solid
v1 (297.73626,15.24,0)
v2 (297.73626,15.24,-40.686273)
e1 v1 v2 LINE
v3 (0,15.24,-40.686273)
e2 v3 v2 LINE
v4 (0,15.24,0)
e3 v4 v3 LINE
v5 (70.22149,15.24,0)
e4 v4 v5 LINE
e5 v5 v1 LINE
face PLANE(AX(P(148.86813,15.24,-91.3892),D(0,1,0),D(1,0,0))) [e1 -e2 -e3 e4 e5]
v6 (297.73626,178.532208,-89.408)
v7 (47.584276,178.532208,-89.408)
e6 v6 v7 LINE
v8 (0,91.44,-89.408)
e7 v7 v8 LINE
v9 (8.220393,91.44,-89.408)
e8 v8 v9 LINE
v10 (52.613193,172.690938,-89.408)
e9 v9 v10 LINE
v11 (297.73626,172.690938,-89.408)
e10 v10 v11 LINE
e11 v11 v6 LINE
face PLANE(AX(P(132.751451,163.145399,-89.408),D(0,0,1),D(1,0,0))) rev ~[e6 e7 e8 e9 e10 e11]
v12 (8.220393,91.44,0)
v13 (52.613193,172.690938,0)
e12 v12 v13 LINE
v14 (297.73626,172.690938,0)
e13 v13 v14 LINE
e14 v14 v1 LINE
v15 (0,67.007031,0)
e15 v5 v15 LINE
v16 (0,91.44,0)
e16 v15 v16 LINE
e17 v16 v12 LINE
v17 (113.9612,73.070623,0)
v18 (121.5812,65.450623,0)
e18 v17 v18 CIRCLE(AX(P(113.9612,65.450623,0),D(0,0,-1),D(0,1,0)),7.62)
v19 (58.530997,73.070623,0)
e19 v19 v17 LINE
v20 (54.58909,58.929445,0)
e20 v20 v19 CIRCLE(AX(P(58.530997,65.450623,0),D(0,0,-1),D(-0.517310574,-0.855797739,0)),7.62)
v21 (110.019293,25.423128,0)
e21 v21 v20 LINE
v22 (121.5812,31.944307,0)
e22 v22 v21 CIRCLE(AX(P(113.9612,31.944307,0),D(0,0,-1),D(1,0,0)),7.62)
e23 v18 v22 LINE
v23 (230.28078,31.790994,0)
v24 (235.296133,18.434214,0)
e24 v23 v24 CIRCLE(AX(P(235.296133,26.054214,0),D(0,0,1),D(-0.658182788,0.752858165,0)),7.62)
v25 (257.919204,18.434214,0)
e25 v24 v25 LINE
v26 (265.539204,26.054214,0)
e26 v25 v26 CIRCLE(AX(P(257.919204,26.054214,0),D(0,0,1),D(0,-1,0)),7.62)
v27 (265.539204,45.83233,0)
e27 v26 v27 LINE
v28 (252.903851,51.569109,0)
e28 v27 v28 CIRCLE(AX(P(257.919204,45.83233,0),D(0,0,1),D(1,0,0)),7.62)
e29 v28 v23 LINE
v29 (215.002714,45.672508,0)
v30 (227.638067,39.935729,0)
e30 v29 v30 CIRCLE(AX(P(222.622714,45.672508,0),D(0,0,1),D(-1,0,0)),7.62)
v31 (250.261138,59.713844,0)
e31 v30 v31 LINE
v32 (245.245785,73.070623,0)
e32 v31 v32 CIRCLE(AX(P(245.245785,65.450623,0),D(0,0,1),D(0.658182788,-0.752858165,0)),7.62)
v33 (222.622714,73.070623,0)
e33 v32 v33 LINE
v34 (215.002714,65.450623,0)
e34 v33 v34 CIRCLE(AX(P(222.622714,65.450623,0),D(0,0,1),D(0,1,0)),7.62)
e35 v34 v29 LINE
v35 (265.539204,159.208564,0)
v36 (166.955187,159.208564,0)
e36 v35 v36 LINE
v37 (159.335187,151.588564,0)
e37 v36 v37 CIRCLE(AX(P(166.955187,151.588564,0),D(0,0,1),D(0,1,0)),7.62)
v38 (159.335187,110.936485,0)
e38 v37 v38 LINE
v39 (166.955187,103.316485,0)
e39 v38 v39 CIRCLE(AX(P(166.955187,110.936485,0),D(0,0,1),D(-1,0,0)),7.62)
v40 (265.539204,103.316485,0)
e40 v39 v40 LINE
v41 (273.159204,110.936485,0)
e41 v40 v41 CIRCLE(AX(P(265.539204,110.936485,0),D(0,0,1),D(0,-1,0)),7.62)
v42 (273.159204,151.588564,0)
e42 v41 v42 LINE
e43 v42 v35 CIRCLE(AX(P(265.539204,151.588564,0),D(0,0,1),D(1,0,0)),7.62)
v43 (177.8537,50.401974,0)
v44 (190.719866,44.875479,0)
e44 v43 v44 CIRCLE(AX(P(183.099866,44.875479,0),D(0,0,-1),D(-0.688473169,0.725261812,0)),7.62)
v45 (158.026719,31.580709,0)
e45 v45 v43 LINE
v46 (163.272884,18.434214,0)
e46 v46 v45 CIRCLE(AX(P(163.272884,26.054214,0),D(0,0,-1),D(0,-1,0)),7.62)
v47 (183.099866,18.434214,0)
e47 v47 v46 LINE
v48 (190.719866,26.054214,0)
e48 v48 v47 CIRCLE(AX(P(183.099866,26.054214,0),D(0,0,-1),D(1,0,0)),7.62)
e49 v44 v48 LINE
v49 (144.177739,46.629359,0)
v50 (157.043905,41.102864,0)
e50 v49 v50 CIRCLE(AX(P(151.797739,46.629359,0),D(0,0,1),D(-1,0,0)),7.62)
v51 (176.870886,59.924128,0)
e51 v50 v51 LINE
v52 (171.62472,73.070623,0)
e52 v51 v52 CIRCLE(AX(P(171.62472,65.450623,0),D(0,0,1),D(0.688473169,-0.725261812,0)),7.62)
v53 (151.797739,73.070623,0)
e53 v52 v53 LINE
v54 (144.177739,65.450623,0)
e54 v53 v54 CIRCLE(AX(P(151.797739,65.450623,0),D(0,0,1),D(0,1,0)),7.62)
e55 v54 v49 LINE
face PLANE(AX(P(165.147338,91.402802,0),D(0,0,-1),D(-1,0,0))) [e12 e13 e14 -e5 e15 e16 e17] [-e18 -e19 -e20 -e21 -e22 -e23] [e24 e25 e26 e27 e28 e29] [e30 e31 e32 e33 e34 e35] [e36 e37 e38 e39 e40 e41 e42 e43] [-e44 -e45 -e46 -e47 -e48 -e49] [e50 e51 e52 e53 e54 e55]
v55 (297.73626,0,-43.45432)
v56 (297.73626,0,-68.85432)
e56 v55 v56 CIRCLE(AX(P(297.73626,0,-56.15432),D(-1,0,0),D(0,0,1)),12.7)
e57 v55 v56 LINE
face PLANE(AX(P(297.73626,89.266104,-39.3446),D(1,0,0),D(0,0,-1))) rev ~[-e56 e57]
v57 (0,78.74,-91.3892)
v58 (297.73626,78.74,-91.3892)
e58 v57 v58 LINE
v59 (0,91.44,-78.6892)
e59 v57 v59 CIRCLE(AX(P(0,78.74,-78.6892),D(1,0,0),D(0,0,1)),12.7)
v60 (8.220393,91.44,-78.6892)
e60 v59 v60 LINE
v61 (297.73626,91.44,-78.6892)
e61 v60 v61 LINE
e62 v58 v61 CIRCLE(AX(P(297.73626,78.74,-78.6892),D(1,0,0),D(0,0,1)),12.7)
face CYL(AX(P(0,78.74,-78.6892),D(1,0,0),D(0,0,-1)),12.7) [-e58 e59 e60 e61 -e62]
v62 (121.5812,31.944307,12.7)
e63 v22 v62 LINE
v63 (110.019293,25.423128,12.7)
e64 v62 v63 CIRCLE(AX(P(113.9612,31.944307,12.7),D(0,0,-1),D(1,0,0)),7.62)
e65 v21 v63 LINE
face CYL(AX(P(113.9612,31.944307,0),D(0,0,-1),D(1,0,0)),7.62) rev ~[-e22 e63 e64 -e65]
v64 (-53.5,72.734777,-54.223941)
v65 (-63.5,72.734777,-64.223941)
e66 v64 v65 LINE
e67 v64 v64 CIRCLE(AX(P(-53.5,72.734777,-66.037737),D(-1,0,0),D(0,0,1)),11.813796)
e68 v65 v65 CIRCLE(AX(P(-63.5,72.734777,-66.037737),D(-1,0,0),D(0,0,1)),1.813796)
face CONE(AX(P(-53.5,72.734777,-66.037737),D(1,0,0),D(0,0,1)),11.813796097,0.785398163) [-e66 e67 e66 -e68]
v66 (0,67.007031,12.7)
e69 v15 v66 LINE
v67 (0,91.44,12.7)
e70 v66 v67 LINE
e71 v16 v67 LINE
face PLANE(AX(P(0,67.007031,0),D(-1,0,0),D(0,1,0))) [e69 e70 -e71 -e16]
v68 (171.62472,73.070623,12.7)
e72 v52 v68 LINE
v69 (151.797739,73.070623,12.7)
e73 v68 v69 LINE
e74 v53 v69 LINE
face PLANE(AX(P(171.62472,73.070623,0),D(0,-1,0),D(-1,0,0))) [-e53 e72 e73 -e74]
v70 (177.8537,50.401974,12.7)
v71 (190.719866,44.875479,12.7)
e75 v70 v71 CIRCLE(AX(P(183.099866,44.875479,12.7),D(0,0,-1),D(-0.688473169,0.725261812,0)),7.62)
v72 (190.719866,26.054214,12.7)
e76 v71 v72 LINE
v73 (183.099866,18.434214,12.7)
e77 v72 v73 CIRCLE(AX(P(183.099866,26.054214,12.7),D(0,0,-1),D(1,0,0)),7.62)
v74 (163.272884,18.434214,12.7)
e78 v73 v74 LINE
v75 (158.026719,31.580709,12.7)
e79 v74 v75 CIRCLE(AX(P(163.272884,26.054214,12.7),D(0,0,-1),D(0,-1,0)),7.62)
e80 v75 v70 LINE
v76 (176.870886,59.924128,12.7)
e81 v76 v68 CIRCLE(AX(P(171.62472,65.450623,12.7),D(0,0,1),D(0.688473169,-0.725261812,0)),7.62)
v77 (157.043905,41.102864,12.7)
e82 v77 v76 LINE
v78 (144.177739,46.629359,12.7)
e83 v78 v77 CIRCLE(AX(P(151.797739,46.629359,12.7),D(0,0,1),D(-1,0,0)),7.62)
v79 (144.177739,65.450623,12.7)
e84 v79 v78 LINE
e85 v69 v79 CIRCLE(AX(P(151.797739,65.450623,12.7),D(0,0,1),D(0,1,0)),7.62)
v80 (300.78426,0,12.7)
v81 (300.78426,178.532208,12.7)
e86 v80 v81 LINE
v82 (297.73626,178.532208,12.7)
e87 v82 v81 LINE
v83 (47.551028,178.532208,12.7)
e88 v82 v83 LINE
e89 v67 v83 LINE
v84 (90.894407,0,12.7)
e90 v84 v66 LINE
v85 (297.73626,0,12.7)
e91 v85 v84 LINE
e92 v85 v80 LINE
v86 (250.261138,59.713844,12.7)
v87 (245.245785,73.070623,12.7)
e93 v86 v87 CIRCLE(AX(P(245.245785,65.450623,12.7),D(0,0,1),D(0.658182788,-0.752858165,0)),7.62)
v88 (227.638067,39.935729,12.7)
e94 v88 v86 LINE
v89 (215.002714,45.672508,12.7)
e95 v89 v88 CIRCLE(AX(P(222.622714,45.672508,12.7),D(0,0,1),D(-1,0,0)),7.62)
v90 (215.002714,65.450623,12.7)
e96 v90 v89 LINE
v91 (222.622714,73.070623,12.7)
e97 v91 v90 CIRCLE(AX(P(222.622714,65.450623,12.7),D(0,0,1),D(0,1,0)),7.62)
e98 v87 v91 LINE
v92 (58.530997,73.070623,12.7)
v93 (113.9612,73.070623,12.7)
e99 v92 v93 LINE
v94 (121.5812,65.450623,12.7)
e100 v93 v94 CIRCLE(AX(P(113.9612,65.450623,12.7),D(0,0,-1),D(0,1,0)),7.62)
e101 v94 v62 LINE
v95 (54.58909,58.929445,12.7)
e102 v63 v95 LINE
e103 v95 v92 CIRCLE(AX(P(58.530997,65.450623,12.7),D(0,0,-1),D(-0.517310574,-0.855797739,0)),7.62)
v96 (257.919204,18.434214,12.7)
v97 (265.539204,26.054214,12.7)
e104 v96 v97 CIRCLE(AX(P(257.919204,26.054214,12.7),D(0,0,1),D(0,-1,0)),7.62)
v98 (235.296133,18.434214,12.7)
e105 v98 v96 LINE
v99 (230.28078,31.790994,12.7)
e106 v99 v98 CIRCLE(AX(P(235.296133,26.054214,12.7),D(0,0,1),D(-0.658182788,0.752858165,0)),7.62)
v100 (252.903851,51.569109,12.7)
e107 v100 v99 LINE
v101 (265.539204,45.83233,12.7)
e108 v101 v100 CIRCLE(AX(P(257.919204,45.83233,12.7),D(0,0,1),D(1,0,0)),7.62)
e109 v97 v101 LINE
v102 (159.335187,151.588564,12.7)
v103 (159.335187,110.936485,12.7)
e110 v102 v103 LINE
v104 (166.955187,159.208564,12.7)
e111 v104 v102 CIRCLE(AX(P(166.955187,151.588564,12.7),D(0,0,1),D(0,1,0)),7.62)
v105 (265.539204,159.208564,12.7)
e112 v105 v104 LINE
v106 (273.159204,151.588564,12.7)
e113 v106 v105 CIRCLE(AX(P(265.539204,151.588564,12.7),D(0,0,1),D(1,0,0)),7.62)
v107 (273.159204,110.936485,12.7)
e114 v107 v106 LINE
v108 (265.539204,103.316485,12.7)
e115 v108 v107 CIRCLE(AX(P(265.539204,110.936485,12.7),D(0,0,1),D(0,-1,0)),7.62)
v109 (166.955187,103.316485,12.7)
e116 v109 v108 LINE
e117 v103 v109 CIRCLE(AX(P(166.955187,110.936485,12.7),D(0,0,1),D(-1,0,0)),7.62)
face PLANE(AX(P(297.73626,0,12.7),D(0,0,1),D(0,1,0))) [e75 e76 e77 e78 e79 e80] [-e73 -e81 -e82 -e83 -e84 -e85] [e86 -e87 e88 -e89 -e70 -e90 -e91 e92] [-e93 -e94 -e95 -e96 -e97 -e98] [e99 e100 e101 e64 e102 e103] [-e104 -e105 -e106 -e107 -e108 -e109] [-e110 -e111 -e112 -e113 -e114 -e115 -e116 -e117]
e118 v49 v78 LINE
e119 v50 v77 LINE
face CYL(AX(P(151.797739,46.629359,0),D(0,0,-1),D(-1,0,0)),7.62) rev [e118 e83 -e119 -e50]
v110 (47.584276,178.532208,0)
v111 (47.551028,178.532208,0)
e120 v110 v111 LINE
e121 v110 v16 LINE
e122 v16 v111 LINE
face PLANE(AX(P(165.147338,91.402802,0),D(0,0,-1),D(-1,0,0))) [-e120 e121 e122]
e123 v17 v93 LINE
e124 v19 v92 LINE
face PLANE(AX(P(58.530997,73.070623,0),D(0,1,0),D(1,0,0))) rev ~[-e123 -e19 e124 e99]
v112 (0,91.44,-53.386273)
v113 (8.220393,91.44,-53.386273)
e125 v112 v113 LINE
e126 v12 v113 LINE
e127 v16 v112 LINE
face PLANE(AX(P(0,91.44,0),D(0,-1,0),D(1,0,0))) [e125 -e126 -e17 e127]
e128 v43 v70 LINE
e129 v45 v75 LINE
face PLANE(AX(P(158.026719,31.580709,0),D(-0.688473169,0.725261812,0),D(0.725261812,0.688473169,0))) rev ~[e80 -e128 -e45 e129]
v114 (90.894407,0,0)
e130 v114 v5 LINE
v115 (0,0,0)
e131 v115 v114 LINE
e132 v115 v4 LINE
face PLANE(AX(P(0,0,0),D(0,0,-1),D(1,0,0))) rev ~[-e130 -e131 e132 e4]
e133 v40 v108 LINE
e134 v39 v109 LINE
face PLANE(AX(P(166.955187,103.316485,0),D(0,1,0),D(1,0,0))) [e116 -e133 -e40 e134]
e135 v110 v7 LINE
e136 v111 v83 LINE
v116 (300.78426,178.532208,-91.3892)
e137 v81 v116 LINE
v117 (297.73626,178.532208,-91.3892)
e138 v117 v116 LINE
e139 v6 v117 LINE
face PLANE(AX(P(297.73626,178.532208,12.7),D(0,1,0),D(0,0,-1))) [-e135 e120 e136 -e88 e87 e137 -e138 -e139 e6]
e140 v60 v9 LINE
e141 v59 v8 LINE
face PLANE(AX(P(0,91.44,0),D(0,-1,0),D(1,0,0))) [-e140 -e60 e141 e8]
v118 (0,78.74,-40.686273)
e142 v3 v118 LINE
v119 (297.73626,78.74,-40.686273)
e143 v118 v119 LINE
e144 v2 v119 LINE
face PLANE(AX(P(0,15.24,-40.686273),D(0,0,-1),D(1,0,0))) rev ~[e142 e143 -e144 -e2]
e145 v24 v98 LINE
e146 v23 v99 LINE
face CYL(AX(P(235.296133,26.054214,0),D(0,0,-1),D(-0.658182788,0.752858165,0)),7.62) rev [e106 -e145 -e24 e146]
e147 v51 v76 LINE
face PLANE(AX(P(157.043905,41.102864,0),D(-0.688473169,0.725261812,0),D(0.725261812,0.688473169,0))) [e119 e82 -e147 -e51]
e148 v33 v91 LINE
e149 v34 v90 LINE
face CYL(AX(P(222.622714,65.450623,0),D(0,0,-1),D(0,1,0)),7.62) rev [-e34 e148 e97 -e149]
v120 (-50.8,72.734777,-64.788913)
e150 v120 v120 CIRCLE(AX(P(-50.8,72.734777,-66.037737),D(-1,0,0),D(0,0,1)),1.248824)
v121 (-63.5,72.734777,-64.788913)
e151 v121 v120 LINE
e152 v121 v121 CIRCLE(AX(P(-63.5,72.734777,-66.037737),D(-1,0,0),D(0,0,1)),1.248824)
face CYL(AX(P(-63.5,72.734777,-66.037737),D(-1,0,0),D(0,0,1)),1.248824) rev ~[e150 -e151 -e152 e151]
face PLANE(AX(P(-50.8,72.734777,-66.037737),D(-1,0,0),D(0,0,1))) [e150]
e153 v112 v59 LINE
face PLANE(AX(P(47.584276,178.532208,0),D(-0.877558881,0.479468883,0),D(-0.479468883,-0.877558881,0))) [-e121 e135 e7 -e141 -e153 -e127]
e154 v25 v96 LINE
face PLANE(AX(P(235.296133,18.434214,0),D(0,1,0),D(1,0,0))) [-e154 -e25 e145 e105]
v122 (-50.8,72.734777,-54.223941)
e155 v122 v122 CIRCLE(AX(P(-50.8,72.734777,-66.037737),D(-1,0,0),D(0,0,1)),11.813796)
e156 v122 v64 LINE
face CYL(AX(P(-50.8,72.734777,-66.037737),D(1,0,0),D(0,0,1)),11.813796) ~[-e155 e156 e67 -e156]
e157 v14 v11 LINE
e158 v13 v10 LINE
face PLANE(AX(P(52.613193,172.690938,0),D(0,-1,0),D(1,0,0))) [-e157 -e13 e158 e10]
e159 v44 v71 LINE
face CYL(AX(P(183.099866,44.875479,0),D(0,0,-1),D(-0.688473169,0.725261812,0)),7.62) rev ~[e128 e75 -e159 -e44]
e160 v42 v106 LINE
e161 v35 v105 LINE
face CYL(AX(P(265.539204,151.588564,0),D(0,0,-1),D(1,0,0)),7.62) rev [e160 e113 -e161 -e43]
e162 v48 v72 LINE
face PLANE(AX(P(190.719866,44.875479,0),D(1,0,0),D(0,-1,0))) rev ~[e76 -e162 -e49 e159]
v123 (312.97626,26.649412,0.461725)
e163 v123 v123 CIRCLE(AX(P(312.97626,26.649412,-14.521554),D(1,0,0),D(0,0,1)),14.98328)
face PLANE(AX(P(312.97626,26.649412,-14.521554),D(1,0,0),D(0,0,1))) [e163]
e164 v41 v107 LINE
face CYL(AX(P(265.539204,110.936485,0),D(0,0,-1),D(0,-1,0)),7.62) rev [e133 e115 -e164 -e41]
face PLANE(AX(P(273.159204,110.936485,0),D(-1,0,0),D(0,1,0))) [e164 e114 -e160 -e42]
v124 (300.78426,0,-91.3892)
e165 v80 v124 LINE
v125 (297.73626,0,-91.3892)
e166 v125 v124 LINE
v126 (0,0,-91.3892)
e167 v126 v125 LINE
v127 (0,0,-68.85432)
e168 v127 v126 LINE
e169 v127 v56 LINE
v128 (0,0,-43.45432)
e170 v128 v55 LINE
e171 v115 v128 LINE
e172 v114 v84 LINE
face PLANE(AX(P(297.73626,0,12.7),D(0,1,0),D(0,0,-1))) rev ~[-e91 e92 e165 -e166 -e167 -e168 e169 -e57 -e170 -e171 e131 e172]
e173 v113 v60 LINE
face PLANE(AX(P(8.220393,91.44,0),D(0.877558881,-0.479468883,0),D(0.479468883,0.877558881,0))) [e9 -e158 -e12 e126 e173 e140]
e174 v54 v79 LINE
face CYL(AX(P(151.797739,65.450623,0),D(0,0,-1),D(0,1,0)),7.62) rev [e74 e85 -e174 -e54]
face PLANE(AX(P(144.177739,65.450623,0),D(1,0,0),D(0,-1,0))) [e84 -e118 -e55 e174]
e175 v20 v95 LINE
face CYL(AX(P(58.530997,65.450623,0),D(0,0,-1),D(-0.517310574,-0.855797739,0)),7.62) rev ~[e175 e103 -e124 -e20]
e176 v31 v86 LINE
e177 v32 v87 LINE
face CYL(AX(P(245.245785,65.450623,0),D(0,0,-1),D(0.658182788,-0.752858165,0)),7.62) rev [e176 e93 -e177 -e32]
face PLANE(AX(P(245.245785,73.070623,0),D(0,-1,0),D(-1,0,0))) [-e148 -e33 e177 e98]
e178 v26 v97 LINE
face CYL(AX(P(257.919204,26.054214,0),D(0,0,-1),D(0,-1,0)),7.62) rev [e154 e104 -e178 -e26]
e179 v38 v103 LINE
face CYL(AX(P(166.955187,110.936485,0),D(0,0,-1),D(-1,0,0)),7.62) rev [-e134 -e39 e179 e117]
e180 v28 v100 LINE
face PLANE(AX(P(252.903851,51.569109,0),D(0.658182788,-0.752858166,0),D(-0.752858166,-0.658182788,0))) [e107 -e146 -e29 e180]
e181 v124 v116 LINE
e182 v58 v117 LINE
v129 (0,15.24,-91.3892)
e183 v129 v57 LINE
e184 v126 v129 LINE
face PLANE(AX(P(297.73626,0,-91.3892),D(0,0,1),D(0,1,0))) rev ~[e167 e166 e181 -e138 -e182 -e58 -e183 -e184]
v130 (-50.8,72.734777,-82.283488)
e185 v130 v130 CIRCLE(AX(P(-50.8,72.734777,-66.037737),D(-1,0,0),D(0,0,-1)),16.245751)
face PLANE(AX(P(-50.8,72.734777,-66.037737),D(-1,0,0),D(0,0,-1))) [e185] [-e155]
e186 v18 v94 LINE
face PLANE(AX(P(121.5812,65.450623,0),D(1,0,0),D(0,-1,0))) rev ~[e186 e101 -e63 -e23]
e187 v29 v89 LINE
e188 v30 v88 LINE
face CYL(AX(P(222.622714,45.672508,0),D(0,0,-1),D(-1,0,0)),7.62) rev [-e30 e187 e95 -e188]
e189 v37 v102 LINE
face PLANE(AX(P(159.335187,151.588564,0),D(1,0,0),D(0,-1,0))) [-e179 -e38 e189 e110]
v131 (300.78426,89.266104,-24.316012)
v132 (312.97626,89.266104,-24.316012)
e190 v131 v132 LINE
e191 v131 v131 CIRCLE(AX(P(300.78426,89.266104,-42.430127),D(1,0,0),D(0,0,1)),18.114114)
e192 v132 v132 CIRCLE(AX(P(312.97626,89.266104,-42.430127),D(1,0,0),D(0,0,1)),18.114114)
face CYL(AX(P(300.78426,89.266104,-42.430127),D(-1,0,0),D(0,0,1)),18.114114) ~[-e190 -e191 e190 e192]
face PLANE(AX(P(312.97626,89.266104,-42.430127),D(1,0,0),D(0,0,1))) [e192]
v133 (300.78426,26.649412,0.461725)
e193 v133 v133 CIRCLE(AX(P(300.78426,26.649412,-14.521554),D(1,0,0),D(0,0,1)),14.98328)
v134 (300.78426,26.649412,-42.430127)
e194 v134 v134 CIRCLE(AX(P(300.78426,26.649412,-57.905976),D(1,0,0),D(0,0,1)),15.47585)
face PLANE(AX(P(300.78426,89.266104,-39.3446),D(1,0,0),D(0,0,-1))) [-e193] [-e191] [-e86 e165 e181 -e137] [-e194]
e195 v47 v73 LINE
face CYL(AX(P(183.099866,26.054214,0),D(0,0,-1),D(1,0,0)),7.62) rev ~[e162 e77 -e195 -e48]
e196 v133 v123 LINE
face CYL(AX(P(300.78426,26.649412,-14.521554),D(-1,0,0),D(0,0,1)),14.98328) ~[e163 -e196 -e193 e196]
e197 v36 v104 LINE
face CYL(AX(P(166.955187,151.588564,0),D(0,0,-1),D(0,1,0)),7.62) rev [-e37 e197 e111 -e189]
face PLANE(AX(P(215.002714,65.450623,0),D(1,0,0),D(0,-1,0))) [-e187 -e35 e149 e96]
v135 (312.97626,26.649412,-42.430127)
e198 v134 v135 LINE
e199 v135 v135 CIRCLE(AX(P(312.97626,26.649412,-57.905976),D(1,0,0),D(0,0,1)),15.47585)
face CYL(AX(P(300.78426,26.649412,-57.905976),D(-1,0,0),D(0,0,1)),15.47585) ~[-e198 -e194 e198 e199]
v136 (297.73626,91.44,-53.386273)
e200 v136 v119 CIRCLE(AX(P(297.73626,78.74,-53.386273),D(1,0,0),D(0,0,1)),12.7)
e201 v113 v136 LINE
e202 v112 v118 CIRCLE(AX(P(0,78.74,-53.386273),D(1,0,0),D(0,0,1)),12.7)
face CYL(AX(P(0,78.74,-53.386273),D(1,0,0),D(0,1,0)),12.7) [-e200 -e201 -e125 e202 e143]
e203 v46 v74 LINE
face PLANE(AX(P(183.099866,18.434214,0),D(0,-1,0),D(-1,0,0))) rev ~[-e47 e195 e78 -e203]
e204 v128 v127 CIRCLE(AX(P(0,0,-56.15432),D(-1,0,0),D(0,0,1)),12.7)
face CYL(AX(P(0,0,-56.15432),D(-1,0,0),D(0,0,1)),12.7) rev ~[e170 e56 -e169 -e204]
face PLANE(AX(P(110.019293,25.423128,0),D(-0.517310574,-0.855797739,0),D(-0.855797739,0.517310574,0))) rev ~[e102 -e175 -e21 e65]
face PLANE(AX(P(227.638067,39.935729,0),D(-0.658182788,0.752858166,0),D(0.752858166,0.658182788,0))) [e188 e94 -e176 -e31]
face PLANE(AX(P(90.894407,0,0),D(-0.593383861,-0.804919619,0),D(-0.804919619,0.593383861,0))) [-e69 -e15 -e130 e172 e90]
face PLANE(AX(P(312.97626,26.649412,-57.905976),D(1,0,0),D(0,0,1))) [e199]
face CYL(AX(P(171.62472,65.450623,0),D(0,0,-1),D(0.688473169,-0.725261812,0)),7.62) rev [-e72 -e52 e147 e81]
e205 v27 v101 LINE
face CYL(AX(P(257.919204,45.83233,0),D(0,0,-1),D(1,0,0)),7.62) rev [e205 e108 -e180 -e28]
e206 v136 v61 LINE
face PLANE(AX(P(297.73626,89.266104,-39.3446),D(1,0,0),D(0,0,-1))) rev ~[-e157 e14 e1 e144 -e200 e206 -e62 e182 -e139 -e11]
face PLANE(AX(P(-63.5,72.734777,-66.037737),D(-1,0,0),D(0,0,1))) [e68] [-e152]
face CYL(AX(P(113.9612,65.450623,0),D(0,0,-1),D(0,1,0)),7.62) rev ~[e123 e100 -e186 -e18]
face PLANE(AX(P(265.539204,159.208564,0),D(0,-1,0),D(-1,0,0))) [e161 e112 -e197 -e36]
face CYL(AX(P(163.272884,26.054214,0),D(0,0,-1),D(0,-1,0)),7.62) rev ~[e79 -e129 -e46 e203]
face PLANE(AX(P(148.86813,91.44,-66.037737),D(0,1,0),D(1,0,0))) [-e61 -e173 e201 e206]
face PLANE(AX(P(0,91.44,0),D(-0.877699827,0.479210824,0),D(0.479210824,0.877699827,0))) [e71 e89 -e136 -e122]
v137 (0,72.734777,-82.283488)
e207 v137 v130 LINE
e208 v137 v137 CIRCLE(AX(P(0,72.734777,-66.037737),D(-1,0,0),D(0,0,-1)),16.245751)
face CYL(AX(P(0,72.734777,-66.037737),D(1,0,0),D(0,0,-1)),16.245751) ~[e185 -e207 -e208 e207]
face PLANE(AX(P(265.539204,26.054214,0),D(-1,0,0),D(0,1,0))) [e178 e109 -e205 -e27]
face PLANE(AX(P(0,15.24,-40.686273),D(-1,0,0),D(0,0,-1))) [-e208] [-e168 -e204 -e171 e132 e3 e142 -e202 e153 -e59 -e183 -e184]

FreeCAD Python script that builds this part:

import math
import FreeCAD as App
import Part
import Sketcher
from FreeCAD import Vector
Q = App.Units.Quantity


def edges_at(feature, points):
    """Names of the edges that pass closest to the given points."""
    edges = feature.Shape.Edges
    near = lambda p: min(range(len(edges)), key=lambda i: edges[i].distToShape(Part.Vertex(*p))[0])
    return sorted({f"Edge{near(p) + 1}" for p in points})


def add_polygon(sketch, points):
    """Adds a closed chain of lines whose ends are joined by coincident constraints."""
    first, n = sketch.GeometryCount, len(points)
    for a, b in zip(points, points[1:] + points[:1]):
        sketch.addGeometry(Part.LineSegment(App.Vector(*a, 0), App.Vector(*b, 0)), False)
    for i in range(n):
        sketch.addConstraint(Sketcher.Constraint("Coincident", first + i, 2, first + (i + 1) % n, 1))

doc = App.newDocument("Part")
body = doc.addObject("PartDesign::Body", "Body")

# Sketch on XZ plane
sketch1 = body.newObject("Sketcher::SketchObject", "Sketch")
sketch1.AttachmentSupport = (doc.getObject("XZ_Plane"), [""])
sketch1.MapMode = "FlatFace"
add_polygon(sketch1, [(0, -182.7784), (0, 0), (297.73626, 0), (297.73626, -182.7784)])  # lines 0-3
sketch1.addConstraint(Sketcher.Constraint("Vertical", 0))
sketch1.addConstraint(Sketcher.Constraint("Horizontal", 1))
sketch1.addConstraint(Sketcher.Constraint("Vertical", 2))
sketch1.addConstraint(Sketcher.Constraint("Horizontal", 3))
sketch1.addConstraint(Sketcher.Constraint("Coincident", 0, 2, -1, 1))
sketch1.addConstraint(Sketcher.Constraint("DistanceY", 0, 1, 0, 2, Q("7.196 in")))
sketch1.addConstraint(Sketcher.Constraint("DistanceX", 1, 1, 1, 2, Q("11.7219 in")))
pad1 = body.newObject("PartDesign::Pad", "Pad")
pad1.Profile = sketch1
pad1.Length = Q("0.6 in")
pad1.Reversed = True

# Sketch on YZ plane
sketch2 = body.newObject("Sketcher::SketchObject", "Sketch001")
sketch2.AttachmentSupport = (doc.getObject("YZ_Plane"), [""])
sketch2.MapMode = "FlatFace"
sketch2.addGeometry(Part.ArcOfCircle(Part.Circle(Vector(0, -56.15432, 0), Vector(0, 0, 1), 12.7), math.radians(-90), math.radians(90)), False)
sketch2.addGeometry(Part.LineSegment(Vector(0, -68.85432, 0), Vector(0, -43.45432, 0)), False)
sketch2.addGeometry(Part.ArcOfCircle(Part.Circle(Vector(0, -126.62408, 0), Vector(0, 0, 1), 12.7), math.radians(-90), math.radians(90)), False)
sketch2.addGeometry(Part.LineSegment(Vector(0, -139.32408, 0), Vector(0, -113.92408, 0)), False)
sketch2.addConstraint(Sketcher.Constraint("Coincident", 0, 1, 1, 1))
sketch2.addConstraint(Sketcher.Constraint("Coincident", 1, 2, 0, 2))
sketch2.addConstraint(Sketcher.Constraint("Coincident", 2, 1, 3, 1))
sketch2.addConstraint(Sketcher.Constraint("Coincident", 3, 2, 2, 2))
sketch2.addConstraint(Sketcher.Constraint("Vertical", 1))
sketch2.addConstraint(Sketcher.Constraint("Vertical", 3))
sketch2.addConstraint(Sketcher.Constraint("Equal", 0, 2))
sketch2.addConstraint(Sketcher.Constraint("PointOnObject", 0, 3, -2))
sketch2.addConstraint(Sketcher.Constraint("PointOnObject", 2, 3, -2))
sketch2.addConstraint(Sketcher.Constraint("PointOnObject", 0, 1, -2))
sketch2.addConstraint(Sketcher.Constraint("PointOnObject", 2, 1, -2))
sketch2.addConstraint(Sketcher.Constraint("Radius", 0, Q("0.5 in")))
sketch2.addConstraint(Sketcher.Constraint("DistanceY", 0, 3, -1, 1, Q("2.2108 in")))
sketch2.addConstraint(Sketcher.Constraint("DistanceY", 2, 3, -1, 1, Q("4.9852 in")))
pocket1 = body.newObject("PartDesign::Pocket", "Pocket")
pocket1.Profile = sketch2
pocket1.Type = "ThroughAll"
pocket1.Reversed = True

# Sketch on YZ plane
sketch3 = body.newObject("Sketcher::SketchObject", "Sketch002")
sketch3.AttachmentSupport = (doc.getObject("YZ_Plane"), [""])
sketch3.MapMode = "FlatFace"
sketch3.addGeometry(Part.LineSegment(Vector(0, -113.92408, 0), Vector(0, -91.3892, 0)), False)
sketch3.addGeometry(Part.LineSegment(Vector(0, -91.3892, 0), Vector(15.24, -91.3892, 0)), False)
sketch3.addGeometry(Part.LineSegment(Vector(15.24, -91.3892, 0), Vector(15.24, -182.7784, 0)), False)
sketch3.addGeometry(Part.LineSegment(Vector(15.24, -182.7784, 0), Vector(0, -182.7784, 0)), False)
sketch3.addGeometry(Part.LineSegment(Vector(0, -182.7784, 0), Vector(0, -139.32408, 0)), False)
sketch3.addGeometry(Part.ArcOfCircle(Part.Circle(Vector(0, -126.62408, 0), Vector(0, 0, 1), 12.7), math.radians(-90), math.radians(90)), False)
sketch3.addConstraint(Sketcher.Constraint("Coincident", 0, 2, 1, 1))
sketch3.addConstraint(Sketcher.Constraint("Coincident", 1, 2, 2, 1))
sketch3.addConstraint(Sketcher.Constraint("Coincident", 2, 2, 3, 1))
sketch3.addConstraint(Sketcher.Constraint("Coincident", 3, 2, 4, 1))
sketch3.addConstraint(Sketcher.Constraint("Coincident", 4, 2, 5, 1))
sketch3.addConstraint(Sketcher.Constraint("Coincident", 5, 2, 0, 1))
sketch3.addConstraint(Sketcher.Constraint("Vertical", 0))
sketch3.addConstraint(Sketcher.Constraint("Horizontal", 1))
sketch3.addConstraint(Sketcher.Constraint("Vertical", 2))
sketch3.addConstraint(Sketcher.Constraint("Horizontal", 3))
sketch3.addConstraint(Sketcher.Constraint("Vertical", 4))
sketch3.addConstraint(Sketcher.Constraint("PointOnObject", 5, 3, -2))
sketch3.addConstraint(Sketcher.Constraint("PointOnObject", 0, 2, -2))
sketch3.addConstraint(Sketcher.Constraint("PointOnObject", 3, 2, -2))
sketch3.addConstraint(Sketcher.Constraint("Radius", 5, Q("0.5 in")))
sketch3.addConstraint(Sketcher.Constraint("DistanceX", 1, 1, 1, 2, Q("0.6 in")))
sketch3.addConstraint(Sketcher.Constraint("DistanceY", 2, 2, 2, 1, Q("3.598 in")))
sketch3.addConstraint(Sketcher.Constraint("DistanceY", 0, 1, 0, 2, Q("0.8872 in")))
sketch3.addConstraint(Sketcher.Constraint("DistanceY", 0, 2, -1, 1, Q("3.598 in")))
pocket2 = body.newObject("PartDesign::Pocket", "Pocket001")
pocket2.Profile = sketch3
pocket2.Type = "ThroughAll"
pocket2.Reversed = True

# Sketch on XZ plane
sketch4 = body.newObject("Sketcher::SketchObject", "Sketch003")
sketch4.AttachmentSupport = (doc.getObject("XZ_Plane"), [""])
sketch4.MapMode = "FlatFace"
sketch4.AttachmentOffset = App.Placement(Vector(0, 0, -0.6 * 25.4), App.Rotation())
add_polygon(sketch4, [(0, -91.3892), (0, -40.686273), (297.73626, -40.686273), (297.73626, -91.3892)])  # lines 0-3
sketch4.addConstraint(Sketcher.Constraint("Vertical", 0))
sketch4.addConstraint(Sketcher.Constraint("Horizontal", 1))
sketch4.addConstraint(Sketcher.Constraint("Vertical", 2))
sketch4.addConstraint(Sketcher.Constraint("Horizontal", 3))
sketch4.addConstraint(Sketcher.Constraint("PointOnObject", 0, 2, -2))
sketch4.addConstraint(Sketcher.Constraint("DistanceX", 1, 1, 1, 2, Q("11.7219 in")))
sketch4.addConstraint(Sketcher.Constraint("DistanceY", 2, 2, -1, 1, Q("3.598 in")))
sketch4.addConstraint(Sketcher.Constraint("DistanceY", 0, 1, 0, 2, Q("50.702927 mm")))
pad2 = body.newObject("PartDesign::Pad", "Pad001")
pad2.Profile = sketch4
pad2.Length = Q("3 in")
pad2.Reversed = True
doc.recompute()

fillet = body.newObject("PartDesign::Fillet", "Fillet")
fillet.Base = (pad2, edges_at(pad2, [(148.868, 91.44, -91.389)]))
fillet.Radius = Q("0.5 in")
doc.recompute()

fillet2 = body.newObject("PartDesign::Fillet", "Fillet001")
fillet2.Base = (fillet, edges_at(fillet, [(148.868, 91.44, -40.686)]))
fillet2.Radius = Q("0.5 in")

# Sketch on YZ plane
sketch5 = body.newObject("Sketcher::SketchObject", "Sketch004")
sketch5.AttachmentSupport = (doc.getObject("YZ_Plane"), [""])
sketch5.MapMode = "FlatFace"
sketch5.addGeometry(Part.Circle(Vector(72.734777, -66.037737, 0), Vector(0, 0, 1), 16.245751), False)
sketch5.addConstraint(Sketcher.Constraint("Diameter", 0, Q("32.491502 mm")))
sketch5.addConstraint(Sketcher.Constraint("DistanceX", -1, 1, 0, 3, Q("72.734777 mm")))
sketch5.addConstraint(Sketcher.Constraint("DistanceY", 0, 3, -1, 1, Q("66.037737 mm")))
pad3 = body.newObject("PartDesign::Pad", "Pad002")
pad3.Profile = sketch5
pad3.Length = Q("2 in")
pad3.Reversed = True

# Sketch on YZ plane
sketch6 = body.newObject("Sketcher::SketchObject", "Sketch005")
sketch6.AttachmentSupport = (doc.getObject("YZ_Plane"), [""])
sketch6.MapMode = "FlatFace"
sketch6.AttachmentOffset = App.Placement(Vector(0, 0, -2 * 25.4), App.Rotation())
sketch6.addGeometry(Part.Circle(Vector(72.734777, -66.037737, 0), Vector(0, 0, 1), 11.813796), False)
sketch6.addConstraint(Sketcher.Constraint("Diameter", 0, Q("23.627592 mm")))
sketch6.addConstraint(Sketcher.Constraint("DistanceX", -1, 1, 0, 3, Q("72.734777 mm")))
sketch6.addConstraint(Sketcher.Constraint("DistanceY", 0, 3, -1, 1, Q("66.037737 mm")))
pad4 = body.newObject("PartDesign::Pad", "Pad003")
pad4.Profile = sketch6
pad4.Length = Q("0.5 in")
pad4.Reversed = True
doc.recompute()

chamfer = body.newObject("PartDesign::Chamfer", "Chamfer")
chamfer.Base = (pad4, edges_at(pad4, [(-63.5, 72.735, -77.852)]))
chamfer.Size = 10

# Sketch on YZ plane
sketch7 = body.newObject("Sketcher::SketchObject", "Sketch006")
sketch7.AttachmentSupport = (doc.getObject("YZ_Plane"), [""])
sketch7.MapMode = "FlatFace"
sketch7.AttachmentOffset = App.Placement(Vector(0, 0, -2.5 * 25.4), App.Rotation())
sketch7.addGeometry(Part.Circle(Vector(72.734777, -66.037737, 0), Vector(0, 0, 1), 1.248824), False)
sketch7.addConstraint(Sketcher.Constraint("Diameter", 0, Q("2.497647 mm")))
sketch7.addConstraint(Sketcher.Constraint("DistanceX", -1, 1, 0, 3, Q("72.734777 mm")))
sketch7.addConstraint(Sketcher.Constraint("DistanceY", 0, 3, -1, 1, Q("66.037737 mm")))
pocket3 = body.newObject("PartDesign::Pocket", "Pocket002")
pocket3.Profile = sketch7
pocket3.Length = Q("0.5 in")
pocket3.Reversed = True

# Sketch on XY plane
sketch8 = body.newObject("Sketcher::SketchObject", "Sketch007")
sketch8.AttachmentSupport = (doc.getObject("XY_Plane"), [""])
sketch8.MapMode = "FlatFace"
add_polygon(sketch8, [(90.894407, 0), (297.73626, 0), (297.73626, 178.532208), (47.551028, 178.532208), (0, 91.44), (0, 67.007031)])  # lines 0-5
sketch8.addGeometry(Part.ArcOfCircle(Part.Circle(Vector(235.296133, 26.054214, 0), Vector(0, 0, 1), 7.62), math.radians(131.161429), math.radians(270)), False)  # 6
sketch8.addGeometry(Part.LineSegment(Vector(230.28078, 31.790994, 0), Vector(252.903851, 51.569109, 0)), False)  # 7
sketch8.addGeometry(Part.ArcOfCircle(Part.Circle(Vector(257.919204, 45.83233, 0), Vector(0, 0, 1), 7.62), math.radians(0), math.radians(131.161429)), False)  # 8
sketch8.addGeometry(Part.LineSegment(Vector(265.539204, 45.83233, 0), Vector(265.539204, 26.054214, 0)), False)  # 9
sketch8.addGeometry(Part.ArcOfCircle(Part.Circle(Vector(257.919204, 26.054214, 0), Vector(0, 0, 1), 7.62), math.radians(-90), math.radians(0)), False)  # 10
sketch8.addGeometry(Part.LineSegment(Vector(257.919204, 18.434214, 0), Vector(235.296133, 18.434214, 0)), False)  # 11
sketch8.addGeometry(Part.LineSegment(Vector(183.099866, 18.434214, 0), Vector(163.272884, 18.434214, 0)), False)  # 12
sketch8.addGeometry(Part.ArcOfCircle(Part.Circle(Vector(163.272884, 26.054214, 0), Vector(0, 0, 1), 7.62), math.radians(133.509368), math.radians(270)), False)  # 13
sketch8.addGeometry(Part.LineSegment(Vector(158.026719, 31.580709, 0), Vector(177.8537, 50.401974, 0)), False)  # 14
sketch8.addGeometry(Part.ArcOfCircle(Part.Circle(Vector(183.099866, 44.875479, 0), Vector(0, 0, 1), 7.62), math.radians(0), math.radians(133.509368)), False)  # 15
sketch8.addGeometry(Part.LineSegment(Vector(190.719866, 44.875479, 0), Vector(190.719866, 26.054214, 0)), False)  # 16
sketch8.addGeometry(Part.ArcOfCircle(Part.Circle(Vector(183.099866, 26.054214, 0), Vector(0, 0, 1), 7.62), math.radians(-90), math.radians(0)), False)  # 17
sketch8.addGeometry(Part.ArcOfCircle(Part.Circle(Vector(222.622714, 65.450623, 0), Vector(0, 0, 1), 7.62), math.radians(90), math.radians(180)), False)  # 18
sketch8.addGeometry(Part.LineSegment(Vector(222.622714, 73.070623, 0), Vector(245.245785, 73.070623, 0)), False)  # 19
sketch8.addGeometry(Part.ArcOfCircle(Part.Circle(Vector(245.245785, 65.450623, 0), Vector(0, 0, 1), 7.62), math.radians(-48.838571), math.radians(90)), False)  # 20
sketch8.addGeometry(Part.LineSegment(Vector(250.261138, 59.713844, 0), Vector(227.638067, 39.935729, 0)), False)  # 21
sketch8.addGeometry(Part.ArcOfCircle(Part.Circle(Vector(222.622714, 45.672508, 0), Vector(0, 0, 1), 7.62), math.radians(-180), math.radians(-48.838571)), False)  # 22
sketch8.addGeometry(Part.LineSegment(Vector(215.002714, 45.672508, 0), Vector(215.002714, 65.450623, 0)), False)  # 23
sketch8.addGeometry(Part.LineSegment(Vector(58.530997, 73.070623, 0), Vector(113.9612, 73.070623, 0)), False)  # 24
sketch8.addGeometry(Part.ArcOfCircle(Part.Circle(Vector(113.9612, 65.450623, 0), Vector(0, 0, 1), 7.62), math.radians(0), math.radians(90)), False)  # 25
sketch8.addGeometry(Part.LineSegment(Vector(121.5812, 65.450623, 0), Vector(121.5812, 31.944307, 0)), False)  # 26
sketch8.addGeometry(Part.ArcOfCircle(Part.Circle(Vector(113.9612, 31.944307, 0), Vector(0, 0, 1), 7.62), math.radians(-121.152022), math.radians(0)), False)  # 27
sketch8.addGeometry(Part.LineSegment(Vector(110.019293, 25.423128, 0), Vector(54.58909, 58.929445, 0)), False)  # 28
sketch8.addGeometry(Part.ArcOfCircle(Part.Circle(Vector(58.530997, 65.450623, 0), Vector(0, 0, 1), 7.62), math.radians(90), math.radians(238.847978)), False)  # 29
sketch8.addGeometry(Part.ArcOfCircle(Part.Circle(Vector(151.797739, 65.450623, 0), Vector(0, 0, 1), 7.62), math.radians(90), math.radians(180)), False)  # 30
sketch8.addGeometry(Part.LineSegment(Vector(151.797739, 73.070623, 0), Vector(171.62472, 73.070623, 0)), False)  # 31
sketch8.addGeometry(Part.ArcOfCircle(Part.Circle(Vector(171.62472, 65.450623, 0), Vector(0, 0, 1), 7.62), math.radians(-46.490632), math.radians(90)), False)  # 32
sketch8.addGeometry(Part.LineSegment(Vector(176.870886, 59.924128, 0), Vector(157.043905, 41.102864, 0)), False)  # 33
sketch8.addGeometry(Part.ArcOfCircle(Part.Circle(Vector(151.797739, 46.629359, 0), Vector(0, 0, 1), 7.62), math.radians(-180), math.radians(-46.490632)), False)  # 34
sketch8.addGeometry(Part.LineSegment(Vector(144.177739, 46.629359, 0), Vector(144.177739, 65.450623, 0)), False)  # 35
sketch8.addGeometry(Part.ArcOfCircle(Part.Circle(Vector(265.539204, 151.588564, 0), Vector(0, 0, 1), 7.62), math.radians(0), math.radians(90)), False)  # 36
sketch8.addGeometry(Part.LineSegment(Vector(273.159204, 151.588564, 0), Vector(273.159204, 110.936485, 0)), False)  # 37
sketch8.addGeometry(Part.ArcOfCircle(Part.Circle(Vector(265.539204, 110.936485, 0), Vector(0, 0, 1), 7.62), math.radians(-90), math.radians(0)), False)  # 38
sketch8.addGeometry(Part.LineSegment(Vector(265.539204, 103.316485, 0), Vector(166.955187, 103.316485, 0)), False)  # 39
sketch8.addGeometry(Part.ArcOfCircle(Part.Circle(Vector(166.955187, 110.936485, 0), Vector(0, 0, 1), 7.62), math.radians(180), math.radians(270)), False)  # 40
sketch8.addGeometry(Part.LineSegment(Vector(159.335187, 110.936485, 0), Vector(159.335187, 151.588564, 0)), False)  # 41
sketch8.addGeometry(Part.ArcOfCircle(Part.Circle(Vector(166.955187, 151.588564, 0), Vector(0, 0, 1), 7.62), math.radians(90), math.radians(180)), False)  # 42
sketch8.addGeometry(Part.LineSegment(Vector(166.955187, 159.208564, 0), Vector(265.539204, 159.208564, 0)), False)  # 43
sketch8.addConstraint(Sketcher.Constraint("Tangent", 6, 1, 7, 1))
sketch8.addConstraint(Sketcher.Constraint("Tangent", 7, 2, 8, 2))
sketch8.addConstraint(Sketcher.Constraint("Tangent", 8, 1, 9, 1))
sketch8.addConstraint(Sketcher.Constraint("Tangent", 9, 2, 10, 2))
sketch8.addConstraint(Sketcher.Constraint("Tangent", 10, 1, 11, 1))
sketch8.addConstraint(Sketcher.Constraint("Tangent", 11, 2, 6, 2))
sketch8.addConstraint(Sketcher.Constraint("Tangent", 12, 2, 13, 2))
sketch8.addConstraint(Sketcher.Constraint("Tangent", 13, 1, 14, 1))
sketch8.addConstraint(Sketcher.Constraint("Tangent", 14, 2, 15, 2))
sketch8.addConstraint(Sketcher.Constraint("Tangent", 15, 1, 16, 1))
sketch8.addConstraint(Sketcher.Constraint("Tangent", 16, 2, 17, 2))
sketch8.addConstraint(Sketcher.Constraint("Tangent", 17, 1, 12, 1))
sketch8.addConstraint(Sketcher.Constraint("Tangent", 18, 1, 19, 1))
sketch8.addConstraint(Sketcher.Constraint("Tangent", 19, 2, 20, 2))
sketch8.addConstraint(Sketcher.Constraint("Tangent", 20, 1, 21, 1))
sketch8.addConstraint(Sketcher.Constraint("Tangent", 21, 2, 22, 2))
sketch8.addConstraint(Sketcher.Constraint("Tangent", 22, 1, 23, 1))
sketch8.addConstraint(Sketcher.Constraint("Tangent", 23, 2, 18, 2))
sketch8.addConstraint(Sketcher.Constraint("Tangent", 24, 2, 25, 2))
sketch8.addConstraint(Sketcher.Constraint("Tangent", 25, 1, 26, 1))
sketch8.addConstraint(Sketcher.Constraint("Tangent", 26, 2, 27, 2))
sketch8.addConstraint(Sketcher.Constraint("Tangent", 27, 1, 28, 1))
sketch8.addConstraint(Sketcher.Constraint("Tangent", 28, 2, 29, 2))
sketch8.addConstraint(Sketcher.Constraint("Tangent", 29, 1, 24, 1))
sketch8.addConstraint(Sketcher.Constraint("Tangent", 30, 1, 31, 1))
sketch8.addConstraint(Sketcher.Constraint("Tangent", 31, 2, 32, 2))
sketch8.addConstraint(Sketcher.Constraint("Tangent", 32, 1, 33, 1))
sketch8.addConstraint(Sketcher.Constraint("Tangent", 33, 2, 34, 2))
sketch8.addConstraint(Sketcher.Constraint("Tangent", 34, 1, 35, 1))
sketch8.addConstraint(Sketcher.Constraint("Tangent", 35, 2, 30, 2))
sketch8.addConstraint(Sketcher.Constraint("Tangent", 36, 1, 37, 1))
sketch8.addConstraint(Sketcher.Constraint("Tangent", 37, 2, 38, 2))
sketch8.addConstraint(Sketcher.Constraint("Tangent", 38, 1, 39, 1))
sketch8.addConstraint(Sketcher.Constraint("Tangent", 39, 2, 40, 2))
sketch8.addConstraint(Sketcher.Constraint("Tangent", 40, 1, 41, 1))
sketch8.addConstraint(Sketcher.Constraint("Tangent", 41, 2, 42, 2))
sketch8.addConstraint(Sketcher.Constraint("Tangent", 42, 1, 43, 1))
sketch8.addConstraint(Sketcher.Constraint("Tangent", 43, 2, 36, 2))
sketch8.addConstraint(Sketcher.Constraint("Horizontal", 0))
sketch8.addConstraint(Sketcher.Constraint("Vertical", 1))
sketch8.addConstraint(Sketcher.Constraint("Horizontal", 2))
sketch8.addConstraint(Sketcher.Constraint("Vertical", 4))
sketch8.addConstraint(Sketcher.Constraint("Vertical", 9))
sketch8.addConstraint(Sketcher.Constraint("Horizontal", 11))
sketch8.addConstraint(Sketcher.Constraint("Horizontal", 12))
sketch8.addConstraint(Sketcher.Constraint("Vertical", 16))
sketch8.addConstraint(Sketcher.Constraint("Horizontal", 19))
sketch8.addConstraint(Sketcher.Constraint("Vertical", 23))
sketch8.addConstraint(Sketcher.Constraint("Horizontal", 24))
sketch8.addConstraint(Sketcher.Constraint("Vertical", 26))
sketch8.addConstraint(Sketcher.Constraint("Horizontal", 31))
sketch8.addConstraint(Sketcher.Constraint("Vertical", 35))
sketch8.addConstraint(Sketcher.Constraint("Vertical", 37))
sketch8.addConstraint(Sketcher.Constraint("Horizontal", 39))
sketch8.addConstraint(Sketcher.Constraint("Vertical", 41))
sketch8.addConstraint(Sketcher.Constraint("Horizontal", 43))
sketch8.addConstraint(Sketcher.Constraint("Equal", 6, 8))
sketch8.addConstraint(Sketcher.Constraint("Equal", 8, 10))
sketch8.addConstraint(Sketcher.Constraint("Equal", 10, 13))
sketch8.addConstraint(Sketcher.Constraint("Equal", 13, 15))
sketch8.addConstraint(Sketcher.Constraint("Equal", 15, 17))
sketch8.addConstraint(Sketcher.Constraint("Equal", 17, 18))
sketch8.addConstraint(Sketcher.Constraint("Equal", 18, 20))
sketch8.addConstraint(Sketcher.Constraint("Equal", 20, 22))
sketch8.addConstraint(Sketcher.Constraint("Equal", 22, 25))
sketch8.addConstraint(Sketcher.Constraint("Equal", 25, 27))
sketch8.addConstraint(Sketcher.Constraint("Equal", 27, 29))
sketch8.addConstraint(Sketcher.Constraint("Equal", 29, 30))
sketch8.addConstraint(Sketcher.Constraint("Equal", 30, 32))
sketch8.addConstraint(Sketcher.Constraint("Equal", 32, 34))
sketch8.addConstraint(Sketcher.Constraint("Equal", 34, 36))
sketch8.addConstraint(Sketcher.Constraint("Equal", 36, 38))
sketch8.addConstraint(Sketcher.Constraint("Equal", 38, 40))
sketch8.addConstraint(Sketcher.Constraint("Equal", 40, 42))
sketch8.addConstraint(Sketcher.Constraint("PointOnObject", 0, 2, -1))
sketch8.addConstraint(Sketcher.Constraint("PointOnObject", 3, 2, -2))
sketch8.addConstraint(Sketcher.Constraint("Parallel", 7, 21))
sketch8.addConstraint(Sketcher.Constraint("Parallel", 14, 33))
sketch8.addConstraint(Sketcher.Constraint("Horizontal", 10, 3, 13, 3))
sketch8.addConstraint(Sketcher.Constraint("Horizontal", 20, 3, 25, 3))
sketch8.addConstraint(Sketcher.Constraint("Horizontal", 29, 3, 30, 3))
sketch8.addConstraint(Sketcher.Constraint("Vertical", 38, 3, 8, 1))
sketch8.addConstraint(Sketcher.Constraint("Equal", 11, 19))
sketch8.addConstraint(Sketcher.Constraint("Equal", 12, 31))
sketch8.addConstraint(Sketcher.Constraint("Radius", 6, Q("0.3 in")))
sketch8.addConstraint(Sketcher.Constraint("DistanceY", -1, 1, 3, 2, Q("3.6 in")))
sketch8.addConstraint(Sketcher.Constraint("DistanceX", -1, 1, 0, 2, Q("11.7219 in")))
sketch8.addConstraint(Sketcher.Constraint("DistanceX", 11, 2, 11, 1, Q("22.623071 mm")))
sketch8.addConstraint(Sketcher.Constraint("DistanceX", 12, 2, 12, 1, Q("19.826981 mm")))
sketch8.addConstraint(Sketcher.Constraint("DistanceY", 1, 1, 1, 2, Q("178.532208 mm")))
sketch8.addConstraint(Sketcher.Constraint("DistanceY", 4, 2, 4, 1, Q("24.432969 mm")))
sketch8.addConstraint(Sketcher.Constraint("DistanceY", 37, 2, 37, 1, Q("40.65208 mm")))
sketch8.addConstraint(Sketcher.Constraint("DistanceX", -1, 1, 25, 3, Q("113.9612 mm")))
sketch8.addConstraint(Sketcher.Constraint("DistanceX", -1, 1, 14, 2, Q("177.8537 mm")))
sketch8.addConstraint(Sketcher.Constraint("Distance", 7, Q("30.049579 mm")))
sketch8.addConstraint(Sketcher.Constraint("Distance", 14, Q("27.337688 mm")))
sketch8.addConstraint(Sketcher.Constraint("DistanceX", 0, 1, 0, 2, Q("206.841853 mm")))
sketch8.addConstraint(Sketcher.Constraint("DistanceX", 2, 2, 2, 1, Q("250.185232 mm")))
sketch8.addConstraint(Sketcher.Constraint("DistanceX", 24, 1, 24, 2, Q("55.430203 mm")))
sketch8.addConstraint(Sketcher.Constraint("DistanceX", 39, 2, 39, 1, Q("98.584016 mm")))
sketch8.addConstraint(Sketcher.Constraint("DistanceY", 26, 2, 26, 1, Q("33.506317 mm")))
sketch8.addConstraint(Sketcher.Constraint("DistanceY", -1, 1, 8, 3, Q("45.83233 mm")))
sketch8.addConstraint(Sketcher.Constraint("DistanceY", -1, 1, 22, 3, Q("45.672508 mm")))
sketch8.addConstraint(Sketcher.Constraint("DistanceX", -1, 1, 30, 3, Q("151.797739 mm")))
sketch8.addConstraint(Sketcher.Constraint("DistanceX", -1, 1, 6, 1, Q("230.28078 mm")))
sketch8.addConstraint(Sketcher.Constraint("DistanceX", -1, 1, 18, 3, Q("222.622714 mm")))
sketch8.addConstraint(Sketcher.Constraint("DistanceY", -1, 1, 36, 3, Q("151.588564 mm")))
pad5 = body.newObject("PartDesign::Pad", "Pad004")
pad5.Profile = sketch8
pad5.Length = Q("0.5 in")

# Sketch on XY plane
sketch9 = body.newObject("Sketcher::SketchObject", "Sketch008")
sketch9.AttachmentSupport = (doc.getObject("XY_Plane"), [""])
sketch9.MapMode = "FlatFace"
add_polygon(sketch9, [(0, 91.44), (47.584276, 178.532208), (297.73626, 178.532208), (297.73626, 172.690938), (52.613193, 172.690938), (8.220393, 91.44)])  # lines 0-5
sketch9.addConstraint(Sketcher.Constraint("Horizontal", 1))
sketch9.addConstraint(Sketcher.Constraint("Vertical", 2))
sketch9.addConstraint(Sketcher.Constraint("Horizontal", 3))
sketch9.addConstraint(Sketcher.Constraint("Horizontal", 5))
sketch9.addConstraint(Sketcher.Constraint("PointOnObject", 5, 2, -2))
sketch9.addConstraint(Sketcher.Constraint("Parallel", 0, 4))
sketch9.addConstraint(Sketcher.Constraint("DistanceY", -1, 1, 4, 2, Q("3.6 in")))
sketch9.addConstraint(Sketcher.Constraint("DistanceX", -1, 1, 1, 2, Q("11.7219 in")))
sketch9.addConstraint(Sketcher.Constraint("DistanceY", 2, 2, 2, 1, Q("5.84127 mm")))
sketch9.addConstraint(Sketcher.Constraint("DistanceX", 4, 2, 3, 2, Q("44.392801 mm")))
sketch9.addConstraint(Sketcher.Constraint("Distance", 0, Q("99.24372 mm")))
sketch9.addConstraint(Sketcher.Constraint("DistanceX", 3, 2, 3, 1, Q("245.123067 mm")))
pad6 = body.newObject("PartDesign::Pad", "Pad005")
pad6.Profile = sketch9
pad6.Length = Q("3.52 in")
pad6.Reversed = True

# Sketch on YZ plane
sketch10 = body.newObject("Sketcher::SketchObject", "Sketch009")
sketch10.AttachmentSupport = (doc.getObject("YZ_Plane"), [""])
sketch10.MapMode = "FlatFace"
sketch10.AttachmentOffset = App.Placement(Vector(0, 0, 11.7219 * 25.4), App.Rotation())
add_polygon(sketch10, [(178.532208, 12.7), (0, 12.7), (0, -91.3892), (178.532208, -91.3892)])  # lines 0-3
sketch10.addConstraint(Sketcher.Constraint("Horizontal", 0))
sketch10.addConstraint(Sketcher.Constraint("Vertical", 1))
sketch10.addConstraint(Sketcher.Constraint("Horizontal", 2))
sketch10.addConstraint(Sketcher.Constraint("Vertical", 3))
sketch10.addConstraint(Sketcher.Constraint("PointOnObject", 0, 2, -2))
sketch10.addConstraint(Sketcher.Constraint("DistanceY", -1, 1, 0, 2, Q("0.5 in")))
sketch10.addConstraint(Sketcher.Constraint("DistanceY", 1, 2, 1, 1, Q("4.098 in")))
sketch10.addConstraint(Sketcher.Constraint("DistanceX", 0, 2, 0, 1, Q("178.532208 mm")))
pad7 = body.newObject("PartDesign::Pad", "Pad006")
pad7.Profile = sketch10
pad7.Length = Q("0.12 in")

# Sketch on YZ plane
sketch11 = body.newObject("Sketcher::SketchObject", "Sketch010")
sketch11.AttachmentSupport = (doc.getObject("YZ_Plane"), [""])
sketch11.MapMode = "FlatFace"
sketch11.AttachmentOffset = App.Placement(Vector(0, 0, 11.8419 * 25.4), App.Rotation())
sketch11.addGeometry(Part.Circle(Vector(26.649412, -57.905976, 0), Vector(0, 0, 1), 15.47585), False)
sketch11.addGeometry(Part.Circle(Vector(89.266104, -42.430127, 0), Vector(0, 0, 1), 18.114114), False)
sketch11.addGeometry(Part.Circle(Vector(26.649412, -14.521554, 0), Vector(0, 0, 1), 14.98328), False)
sketch11.addConstraint(Sketcher.Constraint("Vertical", 0, 3, 2, 3))
sketch11.addConstraint(Sketcher.Constraint("Diameter", 0, Q("30.9517 mm")))
sketch11.addConstraint(Sketcher.Constraint("Diameter", 1, Q("36.228229 mm")))
sketch11.addConstraint(Sketcher.Constraint("Diameter", 2, Q("29.96656 mm")))
sketch11.addConstraint(Sketcher.Constraint("DistanceX", 0, 3, 1, 3, Q("62.616692 mm")))
sketch11.addConstraint(Sketcher.Constraint("DistanceY", 0, 3, 1, 3, Q("15.47585 mm")))
sketch11.addConstraint(Sketcher.Constraint("DistanceX", -1, 1, 0, 3, Q("26.649412 mm")))
sketch11.addConstraint(Sketcher.Constraint("DistanceY", 0, 3, -1, 1, Q("57.905976 mm")))
sketch11.addConstraint(Sketcher.Constraint("DistanceY", 2, 3, -1, 1, Q("14.521554 mm")))
pad8 = body.newObject("PartDesign::Pad", "Pad007")
pad8.Profile = sketch11
pad8.Length = Q("0.48 in")

doc.recompute()
